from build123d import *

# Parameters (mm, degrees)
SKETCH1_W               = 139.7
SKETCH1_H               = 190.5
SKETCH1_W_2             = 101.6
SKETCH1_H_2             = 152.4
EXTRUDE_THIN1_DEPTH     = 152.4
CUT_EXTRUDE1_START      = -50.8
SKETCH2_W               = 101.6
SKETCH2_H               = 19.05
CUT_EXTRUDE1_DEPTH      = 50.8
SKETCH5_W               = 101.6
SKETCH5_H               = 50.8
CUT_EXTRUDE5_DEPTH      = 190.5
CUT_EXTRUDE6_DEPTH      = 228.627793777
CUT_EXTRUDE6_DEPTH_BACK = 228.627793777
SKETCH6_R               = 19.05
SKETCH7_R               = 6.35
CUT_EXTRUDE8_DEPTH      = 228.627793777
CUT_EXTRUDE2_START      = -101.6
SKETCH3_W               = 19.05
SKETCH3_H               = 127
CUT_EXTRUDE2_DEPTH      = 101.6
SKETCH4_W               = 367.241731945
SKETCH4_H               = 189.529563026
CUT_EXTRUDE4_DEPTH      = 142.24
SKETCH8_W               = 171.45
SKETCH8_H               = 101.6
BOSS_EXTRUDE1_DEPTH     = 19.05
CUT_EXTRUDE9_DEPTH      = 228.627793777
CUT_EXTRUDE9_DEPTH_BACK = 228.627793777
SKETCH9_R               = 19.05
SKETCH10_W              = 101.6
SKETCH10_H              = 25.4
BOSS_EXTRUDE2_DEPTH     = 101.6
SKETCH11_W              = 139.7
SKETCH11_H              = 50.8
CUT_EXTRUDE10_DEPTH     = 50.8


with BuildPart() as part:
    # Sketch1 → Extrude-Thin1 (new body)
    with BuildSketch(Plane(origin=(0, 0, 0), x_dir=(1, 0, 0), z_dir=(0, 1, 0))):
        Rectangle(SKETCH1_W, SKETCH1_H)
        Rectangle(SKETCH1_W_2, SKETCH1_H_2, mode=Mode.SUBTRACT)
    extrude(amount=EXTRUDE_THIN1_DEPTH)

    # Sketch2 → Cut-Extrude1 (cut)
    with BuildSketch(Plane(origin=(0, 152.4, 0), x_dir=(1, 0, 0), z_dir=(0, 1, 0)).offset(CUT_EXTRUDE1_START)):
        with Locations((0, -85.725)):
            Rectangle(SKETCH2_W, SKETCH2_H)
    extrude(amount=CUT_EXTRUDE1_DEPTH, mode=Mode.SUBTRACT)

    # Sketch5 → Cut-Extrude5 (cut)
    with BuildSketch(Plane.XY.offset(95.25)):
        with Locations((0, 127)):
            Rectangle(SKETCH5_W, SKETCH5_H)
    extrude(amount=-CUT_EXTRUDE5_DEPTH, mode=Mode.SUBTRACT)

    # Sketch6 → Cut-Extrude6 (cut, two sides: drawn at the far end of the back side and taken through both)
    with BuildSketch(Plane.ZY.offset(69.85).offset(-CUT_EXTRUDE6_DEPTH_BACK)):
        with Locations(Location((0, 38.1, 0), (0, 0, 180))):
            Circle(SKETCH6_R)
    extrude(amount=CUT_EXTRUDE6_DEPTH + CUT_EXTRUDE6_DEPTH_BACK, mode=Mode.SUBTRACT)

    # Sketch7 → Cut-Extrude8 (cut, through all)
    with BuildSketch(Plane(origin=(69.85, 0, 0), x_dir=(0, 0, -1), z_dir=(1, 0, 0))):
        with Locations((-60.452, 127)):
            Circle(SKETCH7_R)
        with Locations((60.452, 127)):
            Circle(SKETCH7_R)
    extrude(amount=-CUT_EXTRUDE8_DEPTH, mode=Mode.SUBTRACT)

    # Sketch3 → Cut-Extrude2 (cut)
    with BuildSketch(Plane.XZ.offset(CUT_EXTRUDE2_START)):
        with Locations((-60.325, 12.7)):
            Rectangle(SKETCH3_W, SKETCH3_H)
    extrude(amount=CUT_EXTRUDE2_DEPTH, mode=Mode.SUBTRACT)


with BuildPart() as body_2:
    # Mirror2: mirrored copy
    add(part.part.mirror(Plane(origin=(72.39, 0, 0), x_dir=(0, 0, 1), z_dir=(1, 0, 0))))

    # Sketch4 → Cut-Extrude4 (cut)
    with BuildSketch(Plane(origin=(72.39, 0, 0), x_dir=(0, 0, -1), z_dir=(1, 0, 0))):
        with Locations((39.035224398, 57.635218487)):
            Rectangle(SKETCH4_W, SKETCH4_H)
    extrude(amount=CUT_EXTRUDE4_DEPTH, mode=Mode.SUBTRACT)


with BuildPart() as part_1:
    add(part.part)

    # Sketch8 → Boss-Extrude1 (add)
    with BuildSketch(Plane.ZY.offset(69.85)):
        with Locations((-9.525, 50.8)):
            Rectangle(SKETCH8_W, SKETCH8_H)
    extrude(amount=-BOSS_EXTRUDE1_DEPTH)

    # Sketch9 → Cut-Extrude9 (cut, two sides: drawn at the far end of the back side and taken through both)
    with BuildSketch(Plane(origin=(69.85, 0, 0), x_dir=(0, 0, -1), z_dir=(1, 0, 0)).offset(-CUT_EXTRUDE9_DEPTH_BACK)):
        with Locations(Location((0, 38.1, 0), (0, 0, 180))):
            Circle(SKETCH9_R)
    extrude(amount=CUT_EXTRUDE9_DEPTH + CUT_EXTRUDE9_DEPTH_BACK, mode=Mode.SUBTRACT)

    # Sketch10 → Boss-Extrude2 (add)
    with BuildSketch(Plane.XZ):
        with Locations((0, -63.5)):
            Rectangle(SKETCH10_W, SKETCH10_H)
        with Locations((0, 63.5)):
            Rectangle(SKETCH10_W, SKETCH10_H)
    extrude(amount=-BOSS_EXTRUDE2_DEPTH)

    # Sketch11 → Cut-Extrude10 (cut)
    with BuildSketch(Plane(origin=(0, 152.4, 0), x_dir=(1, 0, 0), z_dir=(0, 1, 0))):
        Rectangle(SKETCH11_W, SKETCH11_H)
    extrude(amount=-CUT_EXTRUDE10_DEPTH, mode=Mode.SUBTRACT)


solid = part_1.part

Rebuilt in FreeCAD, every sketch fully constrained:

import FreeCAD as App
import Part
import Sketcher

V = App.Vector
Q = App.Units.Quantity


def add_polygon(sketch, points):
    """Adds a closed chain of lines whose ends are joined by coincident constraints."""
    first, n = sketch.GeometryCount, len(points)
    for a, b in zip(points, points[1:] + points[:1]):
        sketch.addGeometry(Part.LineSegment(App.Vector(*a, 0), App.Vector(*b, 0)), False)
    for i in range(n):
        sketch.addConstraint(Sketcher.Constraint("Coincident", first + i, 2, first + (i + 1) % n, 1))

doc = App.newDocument("Part")
params = doc.addObject("Spreadsheet::Sheet", "Params")
for row, (alias, value) in enumerate([
    ("sketch1_width", "4 in"),
    ("sketch1_height", "6 in"),
    ("sketch1_width2", "5.5 in"),
    ("sketch1_height2", "7.5 in"),
    ("pad1_length", "6 in"),
    ("sketch2_width", "4 in"),
    ("sketch2_height", "0.75 in"),
    ("pocket1_length", "2 in"),
    ("sketch3_width", "4 in"),
    ("sketch3_height", "2 in"),
    ("pocket2_length", "7.5 in"),
    ("sketch4_diameter", "1.5 in"),
    ("sketch5_diameter", "0.5 in"),
    ("sketch6_height", "5 in"),
    ("sketch6_width", "0.75 in"),
    ("pocket5_length", "4 in"),
    ("pocket6_length", "5.6 in"),
    ("sketch8_width", "4 in"),
    ("sketch8_height", "6.75 in"),
    ("pad2_length", "0.75 in"),
    ("sketch9_diameter", "1.5 in"),
    ("sketch10_width", "4 in"),
    ("sketch10_height", "1 in"),
    ("pad3_length", "4 in"),
    ("sketch11_height", "2 in"),
    ("sketch11_width", "5.5 in"),
    ("pocket8_length", "2 in"),
], start=1):
    params.set(f"A{row}", alias)
    params.set(f"B{row}", "=" + value)
    params.setAlias(f"B{row}", alias)

body = doc.addObject("PartDesign::Body", "Body")

# Sketch on XZ plane
sketch1 = doc.addObject("Sketcher::SketchObject", "Sketch")
body.addObject(sketch1)
sketch1.AttachmentSupport = (doc.XZ_Plane, [""])
sketch1.MapMode = "FlatFace"
add_polygon(sketch1, [(-70, -95), (-70, 95), (70, 95), (70, -95)])  # lines 0-3
add_polygon(sketch1, [(51, 76), (-51, 76), (-51, -76), (51, -76)])  # lines 4-7
sketch1.addConstraint([
    Sketcher.Constraint("Vertical", 0),
    Sketcher.Constraint("Horizontal", 1),
    Sketcher.Constraint("Vertical", 2),
    Sketcher.Constraint("Horizontal", 3),
    Sketcher.Constraint("Horizontal", 4),
    Sketcher.Constraint("Vertical", 5),
    Sketcher.Constraint("Horizontal", 6),
    Sketcher.Constraint("Vertical", 7),
    Sketcher.Constraint("Symmetric", 0, 2, 2, 2, -1, 1),
    Sketcher.Constraint("Symmetric", 4, 2, 6, 2, -1, 1),
    Sketcher.Constraint("DistanceX", 4, 2, 4, 1, Q("4 in")),
    Sketcher.Constraint("DistanceY", 5, 2, 5, 1, Q("6 in")),
    Sketcher.Constraint("DistanceX", 1, 1, 1, 2, Q("5.5 in")),
    Sketcher.Constraint("DistanceY", 0, 1, 0, 2, Q("7.5 in")),
])
sketch1.setExpression("Constraints[18]", "Params.sketch1_width")
sketch1.setExpression("Constraints[19]", "Params.sketch1_height")
sketch1.setExpression("Constraints[20]", "Params.sketch1_width2")
sketch1.setExpression("Constraints[21]", "Params.sketch1_height2")
pad1 = doc.addObject("PartDesign::Pad", "Pad")
body.addObject(pad1)
pad1.Profile = sketch1
pad1.setExpression("Length", "Params.pad1_length")
pad1.Reversed = True

# Sketch on XZ plane
sketch2 = doc.addObject("Sketcher::SketchObject", "Sketch001")
body.addObject(sketch2)
sketch2.AttachmentSupport = (doc.XZ_Plane, [""])
sketch2.MapMode = "FlatFace"
sketch2.AttachmentOffset = App.Placement(V(0, 0, -4 * 25.4), App.Rotation())
add_polygon(sketch2, [(-51, 76), (-51, 95), (51, 95), (51, 76)])  # lines 0-3
sketch2.addConstraint([
    Sketcher.Constraint("Vertical", 0),
    Sketcher.Constraint("Horizontal", 1),
    Sketcher.Constraint("Vertical", 2),
    Sketcher.Constraint("Horizontal", 3),
    Sketcher.Constraint("DistanceX", 1, 1, 1, 2, Q("4 in")),
    Sketcher.Constraint("DistanceX", 0, 2, -1, 1, Q("2 in")),
    Sketcher.Constraint("DistanceY", -1, 1, 2, 2, Q("3 in")),
    Sketcher.Constraint("DistanceY", 0, 1, 0, 2, Q("0.75 in")),
])
sketch2.setExpression("Constraints[8]", "Params.sketch2_width")
sketch2.setExpression("Constraints[11]", "Params.sketch2_height")
pocket1 = doc.addObject("PartDesign::Pocket", "Pocket")
body.addObject(pocket1)
pocket1.Profile = sketch2
pocket1.setExpression("Length", "Params.pocket1_length")

# Sketch on XY plane
sketch3 = doc.addObject("Sketcher::SketchObject", "Sketch002")
body.addObject(sketch3)
sketch3.AttachmentSupport = (doc.XY_Plane, [""])
sketch3.MapMode = "FlatFace"
sketch3.AttachmentOffset = App.Placement(V(0, 0, 3.75 * 25.4), App.Rotation())
add_polygon(sketch3, [(-51, 152), (-51, 102), (51, 102), (51, 152)])  # lines 0-3
sketch3.addConstraint([
    Sketcher.Constraint("Vertical", 0),
    Sketcher.Constraint("Horizontal", 1),
    Sketcher.Constraint("Vertical", 2),
    Sketcher.Constraint("Horizontal", 3),
    Sketcher.Constraint("DistanceX", 1, 1, 1, 2, Q("4 in")),
    Sketcher.Constraint("DistanceY", 0, 2, 0, 1, Q("2 in")),
    Sketcher.Constraint("DistanceX", 0, 2, -1, 1, Q("2 in")),
    Sketcher.Constraint("DistanceY", -1, 1, 0, 2, Q("4 in")),
])
sketch3.setExpression("Constraints[8]", "Params.sketch3_width")
sketch3.setExpression("Constraints[9]", "Params.sketch3_height")
pocket2 = doc.addObject("PartDesign::Pocket", "Pocket001")
body.addObject(pocket2)
pocket2.Profile = sketch3
pocket2.setExpression("Length", "Params.pocket2_length")

# Sketch on YZ plane
sketch4 = doc.addObject("Sketcher::SketchObject", "Sketch003")
body.addObject(sketch4)
sketch4.AttachmentSupport = (doc.YZ_Plane, [""])
sketch4.MapMode = "FlatFace"
sketch4.AttachmentOffset = App.Placement(V(0, 0, -2.75 * 25.4), App.Rotation())
sketch4.addGeometry(Part.Circle(V(38, 0, 0), V(0, 0, 1), 19), False)
sketch4.addConstraint([
    Sketcher.Constraint("PointOnObject", 0, 3, -1),
    Sketcher.Constraint("Diameter", 0, Q("1.5 in")),
    Sketcher.Constraint("DistanceX", -1, 1, 0, 3, Q("1.5 in")),
])
sketch4.setExpression("Constraints[1]", "Params.sketch4_diameter")
pocket3 = doc.addObject("PartDesign::Pocket", "Pocket002")
body.addObject(pocket3)
pocket3.Profile = sketch4
pocket3.Type = "ThroughAll"
pocket3.Midplane = True

# Sketch on YZ plane
sketch5 = doc.addObject("Sketcher::SketchObject", "Sketch004")
body.addObject(sketch5)
sketch5.AttachmentSupport = (doc.YZ_Plane, [""])
sketch5.MapMode = "FlatFace"
sketch5.AttachmentOffset = App.Placement(V(0, 0, 2.75 * 25.4), App.Rotation())
sketch5.addGeometry([
    Part.Circle(V(127, 60, 0), V(0, 0, 1), 6),
    Part.Circle(V(127, -60, 0), V(0, 0, 1), 6),
], False)
sketch5.addConstraint([
    Sketcher.Constraint("Equal", 0, 1),
    Sketcher.Constraint("Symmetric", 0, 3, 1, 3, -1),
    Sketcher.Constraint("Diameter", 0, Q("0.5 in")),
    Sketcher.Constraint("DistanceX", -1, 1, 0, 3, Q("5 in")),
    Sketcher.Constraint("DistanceY", -1, 1, 0, 3, Q("2.38 in")),
])
sketch5.setExpression("Constraints[2]", "Params.sketch5_diameter")
pocket4 = doc.addObject("PartDesign::Pocket", "Pocket003")
body.addObject(pocket4)
pocket4.Profile = sketch5
pocket4.Type = "ThroughAll"

# Sketch on XZ plane
sketch6 = doc.addObject("Sketcher::SketchObject", "Sketch005")
body.addObject(sketch6)
sketch6.AttachmentSupport = (doc.XZ_Plane, [""])
sketch6.MapMode = "FlatFace"
sketch6.AttachmentOffset = App.Placement(V(0, 0, -4 * 25.4), App.Rotation())
add_polygon(sketch6, [(-70, 76), (-70, -51), (-51, -51), (-51, 76)])  # lines 0-3
sketch6.addConstraint([
    Sketcher.Constraint("Vertical", 0),
    Sketcher.Constraint("Horizontal", 1),
    Sketcher.Constraint("Vertical", 2),
    Sketcher.Constraint("Horizontal", 3),
    Sketcher.Constraint("DistanceY", 0, 2, 0, 1, Q("5 in")),
    Sketcher.Constraint("DistanceY", 0, 2, -1, 1, Q("2 in")),
    Sketcher.Constraint("DistanceX", 1, 2, -1, 1, Q("2 in")),
    Sketcher.Constraint("DistanceX", 1, 1, 1, 2, Q("0.75 in")),
])
sketch6.setExpression("Constraints[8]", "Params.sketch6_height")
sketch6.setExpression("Constraints[11]", "Params.sketch6_width")
pocket5 = doc.addObject("PartDesign::Pocket", "Pocket004")
body.addObject(pocket5)
pocket5.Profile = sketch6
pocket5.setExpression("Length", "Params.pocket5_length")
pocket5.Reversed = True
body2 = doc.addObject("PartDesign::Body", "Body001")
doc.recompute()

mirroring = doc.addObject("Part::Mirroring", "Mirroring")
mirroring.Source = body
mirroring.Base = V(72.39, 0, 0)
mirroring.Normal = V(1, 0, 0)
body2.BaseFeature = mirroring
doc.recompute()

# Sketch on YZ plane
sketch7 = doc.addObject("Sketcher::SketchObject", "Sketch006")
body2.addObject(sketch7)
sketch7.AttachmentSupport = (doc.getObject("YZ_Plane001"), [""])
sketch7.MapMode = "FlatFace"
sketch7.AttachmentOffset = App.Placement(V(0, 0, 2.85 * 25.4), App.Rotation())
add_polygon(sketch7, [(152, 145), (-37, 145), (-37, -223), (152, -223)])  # lines 0-3
sketch7.addConstraint([
    Sketcher.Constraint("Horizontal", 0),
    Sketcher.Constraint("Vertical", 1),
    Sketcher.Constraint("Horizontal", 2),
    Sketcher.Constraint("Vertical", 3),
    Sketcher.Constraint("DistanceX", -1, 1, 2, 2, Q("6 in")),
    Sketcher.Constraint("DistanceY", 1, 2, 1, 1, 367.241732),
    Sketcher.Constraint("DistanceX", 0, 2, 0, 1, 189.529563),
    Sketcher.Constraint("DistanceY", -1, 1, 0, 2, 144.585642),
])
pocket6 = doc.addObject("PartDesign::Pocket", "Pocket005")
body2.addObject(pocket6)
pocket6.Profile = sketch7
pocket6.setExpression("Length", "Params.pocket6_length")
pocket6.Reversed = True

# Sketch on YZ plane
sketch8 = doc.addObject("Sketcher::SketchObject", "Sketch007")
body.addObject(sketch8)
sketch8.AttachmentSupport = (doc.YZ_Plane, [""])
sketch8.MapMode = "FlatFace"
sketch8.AttachmentOffset = App.Placement(V(0, 0, -2.75 * 25.4), App.Rotation())
add_polygon(sketch8, [(102, -95), (0, -95), (0, 76), (102, 76)])  # lines 0-3
sketch8.addConstraint([
    Sketcher.Constraint("Horizontal", 0),
    Sketcher.Constraint("Vertical", 1),
    Sketcher.Constraint("Horizontal", 2),
    Sketcher.Constraint("Vertical", 3),
    Sketcher.Constraint("PointOnObject", 0, 2, -2),
    Sketcher.Constraint("DistanceX", 0, 2, 0, 1, Q("4 in")),
    Sketcher.Constraint("DistanceY", -1, 1, 1, 2, Q("3 in")),
    Sketcher.Constraint("DistanceY", 1, 1, 1, 2, Q("6.75 in")),
])
sketch8.setExpression("Constraints[9]", "Params.sketch8_width")
sketch8.setExpression("Constraints[11]", "Params.sketch8_height")
pad2 = doc.addObject("PartDesign::Pad", "Pad001")
body.addObject(pad2)
pad2.Profile = sketch8
pad2.setExpression("Length", "Params.pad2_length")

# Sketch on YZ plane
sketch9 = doc.addObject("Sketcher::SketchObject", "Sketch008")
body.addObject(sketch9)
sketch9.AttachmentSupport = (doc.YZ_Plane, [""])
sketch9.MapMode = "FlatFace"
sketch9.AttachmentOffset = App.Placement(V(0, 0, 2.75 * 25.4), App.Rotation())
sketch9.addGeometry(Part.Circle(V(38, 0, 0), V(0, 0, 1), 19), False)
sketch9.addConstraint([
    Sketcher.Constraint("PointOnObject", 0, 3, -1),
    Sketcher.Constraint("Diameter", 0, Q("1.5 in")),
    Sketcher.Constraint("DistanceX", -1, 1, 0, 3, Q("1.5 in")),
])
sketch9.setExpression("Constraints[1]", "Params.sketch9_diameter")
pocket7 = doc.addObject("PartDesign::Pocket", "Pocket006")
body.addObject(pocket7)
pocket7.Profile = sketch9
pocket7.Type = "ThroughAll"
pocket7.Midplane = True

# Sketch on XZ plane
sketch10 = doc.addObject("Sketcher::SketchObject", "Sketch009")
body.addObject(sketch10)
sketch10.AttachmentSupport = (doc.XZ_Plane, [""])
sketch10.MapMode = "FlatFace"
add_polygon(sketch10, [(-51, -51), (-51, -76), (51, -76), (51, -51)])  # lines 0-3
add_polygon(sketch10, [(-51, 76), (-51, 51), (51, 51), (51, 76)])  # lines 4-7
sketch10.addConstraint([
    Sketcher.Constraint("Vertical", 0),
    Sketcher.Constraint("Horizontal", 1),
    Sketcher.Constraint("Vertical", 2),
    Sketcher.Constraint("Horizontal", 3),
    Sketcher.Constraint("Vertical", 4),
    Sketcher.Constraint("Horizontal", 5),
    Sketcher.Constraint("Vertical", 6),
    Sketcher.Constraint("Horizontal", 7),
    Sketcher.Constraint("Symmetric", 2, 2, 4, 2, -1, 1),
    Sketcher.Constraint("Symmetric", 0, 2, 6, 2, -1, 1),
    Sketcher.Constraint("Vertical", 3, 2, 4, 2),
    Sketcher.Constraint("DistanceX", 1, 1, 1, 2, Q("4 in")),
    Sketcher.Constraint("DistanceY", 0, 2, 0, 1, Q("1 in")),
    Sketcher.Constraint("DistanceY", 0, 2, -1, 1, Q("3 in")),
])
sketch10.setExpression("Constraints[19]", "Params.sketch10_width")
sketch10.setExpression("Constraints[20]", "Params.sketch10_height")
pad3 = doc.addObject("PartDesign::Pad", "Pad002")
body.addObject(pad3)
pad3.Profile = sketch10
pad3.setExpression("Length", "Params.pad3_length")
pad3.Reversed = True

# Sketch on XZ plane
sketch11 = doc.addObject("Sketcher::SketchObject", "Sketch010")
body.addObject(sketch11)
sketch11.AttachmentSupport = (doc.XZ_Plane, [""])
sketch11.MapMode = "FlatFace"
sketch11.AttachmentOffset = App.Placement(V(0, 0, -6 * 25.4), App.Rotation())
add_polygon(sketch11, [(-70, -25), (-70, 25), (70, 25), (70, -25)])  # lines 0-3
sketch11.addConstraint([
    Sketcher.Constraint("Vertical", 0),
    Sketcher.Constraint("Horizontal", 1),
    Sketcher.Constraint("Vertical", 2),
    Sketcher.Constraint("Horizontal", 3),
    Sketcher.Constraint("Symmetric", 0, 2, 2, 2, -1, 1),
    Sketcher.Constraint("DistanceY", 0, 1, 0, 2, Q("2 in")),
    Sketcher.Constraint("DistanceX", 1, 1, 1, 2, Q("5.5 in")),
])
sketch11.setExpression("Constraints[9]", "Params.sketch11_height")
sketch11.setExpression("Constraints[10]", "Params.sketch11_width")
pocket8 = doc.addObject("PartDesign::Pocket", "Pocket007")
body.addObject(pocket8)
pocket8.Profile = sketch11
pocket8.setExpression("Length", "Params.pocket8_length")
pocket8.Reversed = True
mirroring.Visibility = False

doc.recompute()
